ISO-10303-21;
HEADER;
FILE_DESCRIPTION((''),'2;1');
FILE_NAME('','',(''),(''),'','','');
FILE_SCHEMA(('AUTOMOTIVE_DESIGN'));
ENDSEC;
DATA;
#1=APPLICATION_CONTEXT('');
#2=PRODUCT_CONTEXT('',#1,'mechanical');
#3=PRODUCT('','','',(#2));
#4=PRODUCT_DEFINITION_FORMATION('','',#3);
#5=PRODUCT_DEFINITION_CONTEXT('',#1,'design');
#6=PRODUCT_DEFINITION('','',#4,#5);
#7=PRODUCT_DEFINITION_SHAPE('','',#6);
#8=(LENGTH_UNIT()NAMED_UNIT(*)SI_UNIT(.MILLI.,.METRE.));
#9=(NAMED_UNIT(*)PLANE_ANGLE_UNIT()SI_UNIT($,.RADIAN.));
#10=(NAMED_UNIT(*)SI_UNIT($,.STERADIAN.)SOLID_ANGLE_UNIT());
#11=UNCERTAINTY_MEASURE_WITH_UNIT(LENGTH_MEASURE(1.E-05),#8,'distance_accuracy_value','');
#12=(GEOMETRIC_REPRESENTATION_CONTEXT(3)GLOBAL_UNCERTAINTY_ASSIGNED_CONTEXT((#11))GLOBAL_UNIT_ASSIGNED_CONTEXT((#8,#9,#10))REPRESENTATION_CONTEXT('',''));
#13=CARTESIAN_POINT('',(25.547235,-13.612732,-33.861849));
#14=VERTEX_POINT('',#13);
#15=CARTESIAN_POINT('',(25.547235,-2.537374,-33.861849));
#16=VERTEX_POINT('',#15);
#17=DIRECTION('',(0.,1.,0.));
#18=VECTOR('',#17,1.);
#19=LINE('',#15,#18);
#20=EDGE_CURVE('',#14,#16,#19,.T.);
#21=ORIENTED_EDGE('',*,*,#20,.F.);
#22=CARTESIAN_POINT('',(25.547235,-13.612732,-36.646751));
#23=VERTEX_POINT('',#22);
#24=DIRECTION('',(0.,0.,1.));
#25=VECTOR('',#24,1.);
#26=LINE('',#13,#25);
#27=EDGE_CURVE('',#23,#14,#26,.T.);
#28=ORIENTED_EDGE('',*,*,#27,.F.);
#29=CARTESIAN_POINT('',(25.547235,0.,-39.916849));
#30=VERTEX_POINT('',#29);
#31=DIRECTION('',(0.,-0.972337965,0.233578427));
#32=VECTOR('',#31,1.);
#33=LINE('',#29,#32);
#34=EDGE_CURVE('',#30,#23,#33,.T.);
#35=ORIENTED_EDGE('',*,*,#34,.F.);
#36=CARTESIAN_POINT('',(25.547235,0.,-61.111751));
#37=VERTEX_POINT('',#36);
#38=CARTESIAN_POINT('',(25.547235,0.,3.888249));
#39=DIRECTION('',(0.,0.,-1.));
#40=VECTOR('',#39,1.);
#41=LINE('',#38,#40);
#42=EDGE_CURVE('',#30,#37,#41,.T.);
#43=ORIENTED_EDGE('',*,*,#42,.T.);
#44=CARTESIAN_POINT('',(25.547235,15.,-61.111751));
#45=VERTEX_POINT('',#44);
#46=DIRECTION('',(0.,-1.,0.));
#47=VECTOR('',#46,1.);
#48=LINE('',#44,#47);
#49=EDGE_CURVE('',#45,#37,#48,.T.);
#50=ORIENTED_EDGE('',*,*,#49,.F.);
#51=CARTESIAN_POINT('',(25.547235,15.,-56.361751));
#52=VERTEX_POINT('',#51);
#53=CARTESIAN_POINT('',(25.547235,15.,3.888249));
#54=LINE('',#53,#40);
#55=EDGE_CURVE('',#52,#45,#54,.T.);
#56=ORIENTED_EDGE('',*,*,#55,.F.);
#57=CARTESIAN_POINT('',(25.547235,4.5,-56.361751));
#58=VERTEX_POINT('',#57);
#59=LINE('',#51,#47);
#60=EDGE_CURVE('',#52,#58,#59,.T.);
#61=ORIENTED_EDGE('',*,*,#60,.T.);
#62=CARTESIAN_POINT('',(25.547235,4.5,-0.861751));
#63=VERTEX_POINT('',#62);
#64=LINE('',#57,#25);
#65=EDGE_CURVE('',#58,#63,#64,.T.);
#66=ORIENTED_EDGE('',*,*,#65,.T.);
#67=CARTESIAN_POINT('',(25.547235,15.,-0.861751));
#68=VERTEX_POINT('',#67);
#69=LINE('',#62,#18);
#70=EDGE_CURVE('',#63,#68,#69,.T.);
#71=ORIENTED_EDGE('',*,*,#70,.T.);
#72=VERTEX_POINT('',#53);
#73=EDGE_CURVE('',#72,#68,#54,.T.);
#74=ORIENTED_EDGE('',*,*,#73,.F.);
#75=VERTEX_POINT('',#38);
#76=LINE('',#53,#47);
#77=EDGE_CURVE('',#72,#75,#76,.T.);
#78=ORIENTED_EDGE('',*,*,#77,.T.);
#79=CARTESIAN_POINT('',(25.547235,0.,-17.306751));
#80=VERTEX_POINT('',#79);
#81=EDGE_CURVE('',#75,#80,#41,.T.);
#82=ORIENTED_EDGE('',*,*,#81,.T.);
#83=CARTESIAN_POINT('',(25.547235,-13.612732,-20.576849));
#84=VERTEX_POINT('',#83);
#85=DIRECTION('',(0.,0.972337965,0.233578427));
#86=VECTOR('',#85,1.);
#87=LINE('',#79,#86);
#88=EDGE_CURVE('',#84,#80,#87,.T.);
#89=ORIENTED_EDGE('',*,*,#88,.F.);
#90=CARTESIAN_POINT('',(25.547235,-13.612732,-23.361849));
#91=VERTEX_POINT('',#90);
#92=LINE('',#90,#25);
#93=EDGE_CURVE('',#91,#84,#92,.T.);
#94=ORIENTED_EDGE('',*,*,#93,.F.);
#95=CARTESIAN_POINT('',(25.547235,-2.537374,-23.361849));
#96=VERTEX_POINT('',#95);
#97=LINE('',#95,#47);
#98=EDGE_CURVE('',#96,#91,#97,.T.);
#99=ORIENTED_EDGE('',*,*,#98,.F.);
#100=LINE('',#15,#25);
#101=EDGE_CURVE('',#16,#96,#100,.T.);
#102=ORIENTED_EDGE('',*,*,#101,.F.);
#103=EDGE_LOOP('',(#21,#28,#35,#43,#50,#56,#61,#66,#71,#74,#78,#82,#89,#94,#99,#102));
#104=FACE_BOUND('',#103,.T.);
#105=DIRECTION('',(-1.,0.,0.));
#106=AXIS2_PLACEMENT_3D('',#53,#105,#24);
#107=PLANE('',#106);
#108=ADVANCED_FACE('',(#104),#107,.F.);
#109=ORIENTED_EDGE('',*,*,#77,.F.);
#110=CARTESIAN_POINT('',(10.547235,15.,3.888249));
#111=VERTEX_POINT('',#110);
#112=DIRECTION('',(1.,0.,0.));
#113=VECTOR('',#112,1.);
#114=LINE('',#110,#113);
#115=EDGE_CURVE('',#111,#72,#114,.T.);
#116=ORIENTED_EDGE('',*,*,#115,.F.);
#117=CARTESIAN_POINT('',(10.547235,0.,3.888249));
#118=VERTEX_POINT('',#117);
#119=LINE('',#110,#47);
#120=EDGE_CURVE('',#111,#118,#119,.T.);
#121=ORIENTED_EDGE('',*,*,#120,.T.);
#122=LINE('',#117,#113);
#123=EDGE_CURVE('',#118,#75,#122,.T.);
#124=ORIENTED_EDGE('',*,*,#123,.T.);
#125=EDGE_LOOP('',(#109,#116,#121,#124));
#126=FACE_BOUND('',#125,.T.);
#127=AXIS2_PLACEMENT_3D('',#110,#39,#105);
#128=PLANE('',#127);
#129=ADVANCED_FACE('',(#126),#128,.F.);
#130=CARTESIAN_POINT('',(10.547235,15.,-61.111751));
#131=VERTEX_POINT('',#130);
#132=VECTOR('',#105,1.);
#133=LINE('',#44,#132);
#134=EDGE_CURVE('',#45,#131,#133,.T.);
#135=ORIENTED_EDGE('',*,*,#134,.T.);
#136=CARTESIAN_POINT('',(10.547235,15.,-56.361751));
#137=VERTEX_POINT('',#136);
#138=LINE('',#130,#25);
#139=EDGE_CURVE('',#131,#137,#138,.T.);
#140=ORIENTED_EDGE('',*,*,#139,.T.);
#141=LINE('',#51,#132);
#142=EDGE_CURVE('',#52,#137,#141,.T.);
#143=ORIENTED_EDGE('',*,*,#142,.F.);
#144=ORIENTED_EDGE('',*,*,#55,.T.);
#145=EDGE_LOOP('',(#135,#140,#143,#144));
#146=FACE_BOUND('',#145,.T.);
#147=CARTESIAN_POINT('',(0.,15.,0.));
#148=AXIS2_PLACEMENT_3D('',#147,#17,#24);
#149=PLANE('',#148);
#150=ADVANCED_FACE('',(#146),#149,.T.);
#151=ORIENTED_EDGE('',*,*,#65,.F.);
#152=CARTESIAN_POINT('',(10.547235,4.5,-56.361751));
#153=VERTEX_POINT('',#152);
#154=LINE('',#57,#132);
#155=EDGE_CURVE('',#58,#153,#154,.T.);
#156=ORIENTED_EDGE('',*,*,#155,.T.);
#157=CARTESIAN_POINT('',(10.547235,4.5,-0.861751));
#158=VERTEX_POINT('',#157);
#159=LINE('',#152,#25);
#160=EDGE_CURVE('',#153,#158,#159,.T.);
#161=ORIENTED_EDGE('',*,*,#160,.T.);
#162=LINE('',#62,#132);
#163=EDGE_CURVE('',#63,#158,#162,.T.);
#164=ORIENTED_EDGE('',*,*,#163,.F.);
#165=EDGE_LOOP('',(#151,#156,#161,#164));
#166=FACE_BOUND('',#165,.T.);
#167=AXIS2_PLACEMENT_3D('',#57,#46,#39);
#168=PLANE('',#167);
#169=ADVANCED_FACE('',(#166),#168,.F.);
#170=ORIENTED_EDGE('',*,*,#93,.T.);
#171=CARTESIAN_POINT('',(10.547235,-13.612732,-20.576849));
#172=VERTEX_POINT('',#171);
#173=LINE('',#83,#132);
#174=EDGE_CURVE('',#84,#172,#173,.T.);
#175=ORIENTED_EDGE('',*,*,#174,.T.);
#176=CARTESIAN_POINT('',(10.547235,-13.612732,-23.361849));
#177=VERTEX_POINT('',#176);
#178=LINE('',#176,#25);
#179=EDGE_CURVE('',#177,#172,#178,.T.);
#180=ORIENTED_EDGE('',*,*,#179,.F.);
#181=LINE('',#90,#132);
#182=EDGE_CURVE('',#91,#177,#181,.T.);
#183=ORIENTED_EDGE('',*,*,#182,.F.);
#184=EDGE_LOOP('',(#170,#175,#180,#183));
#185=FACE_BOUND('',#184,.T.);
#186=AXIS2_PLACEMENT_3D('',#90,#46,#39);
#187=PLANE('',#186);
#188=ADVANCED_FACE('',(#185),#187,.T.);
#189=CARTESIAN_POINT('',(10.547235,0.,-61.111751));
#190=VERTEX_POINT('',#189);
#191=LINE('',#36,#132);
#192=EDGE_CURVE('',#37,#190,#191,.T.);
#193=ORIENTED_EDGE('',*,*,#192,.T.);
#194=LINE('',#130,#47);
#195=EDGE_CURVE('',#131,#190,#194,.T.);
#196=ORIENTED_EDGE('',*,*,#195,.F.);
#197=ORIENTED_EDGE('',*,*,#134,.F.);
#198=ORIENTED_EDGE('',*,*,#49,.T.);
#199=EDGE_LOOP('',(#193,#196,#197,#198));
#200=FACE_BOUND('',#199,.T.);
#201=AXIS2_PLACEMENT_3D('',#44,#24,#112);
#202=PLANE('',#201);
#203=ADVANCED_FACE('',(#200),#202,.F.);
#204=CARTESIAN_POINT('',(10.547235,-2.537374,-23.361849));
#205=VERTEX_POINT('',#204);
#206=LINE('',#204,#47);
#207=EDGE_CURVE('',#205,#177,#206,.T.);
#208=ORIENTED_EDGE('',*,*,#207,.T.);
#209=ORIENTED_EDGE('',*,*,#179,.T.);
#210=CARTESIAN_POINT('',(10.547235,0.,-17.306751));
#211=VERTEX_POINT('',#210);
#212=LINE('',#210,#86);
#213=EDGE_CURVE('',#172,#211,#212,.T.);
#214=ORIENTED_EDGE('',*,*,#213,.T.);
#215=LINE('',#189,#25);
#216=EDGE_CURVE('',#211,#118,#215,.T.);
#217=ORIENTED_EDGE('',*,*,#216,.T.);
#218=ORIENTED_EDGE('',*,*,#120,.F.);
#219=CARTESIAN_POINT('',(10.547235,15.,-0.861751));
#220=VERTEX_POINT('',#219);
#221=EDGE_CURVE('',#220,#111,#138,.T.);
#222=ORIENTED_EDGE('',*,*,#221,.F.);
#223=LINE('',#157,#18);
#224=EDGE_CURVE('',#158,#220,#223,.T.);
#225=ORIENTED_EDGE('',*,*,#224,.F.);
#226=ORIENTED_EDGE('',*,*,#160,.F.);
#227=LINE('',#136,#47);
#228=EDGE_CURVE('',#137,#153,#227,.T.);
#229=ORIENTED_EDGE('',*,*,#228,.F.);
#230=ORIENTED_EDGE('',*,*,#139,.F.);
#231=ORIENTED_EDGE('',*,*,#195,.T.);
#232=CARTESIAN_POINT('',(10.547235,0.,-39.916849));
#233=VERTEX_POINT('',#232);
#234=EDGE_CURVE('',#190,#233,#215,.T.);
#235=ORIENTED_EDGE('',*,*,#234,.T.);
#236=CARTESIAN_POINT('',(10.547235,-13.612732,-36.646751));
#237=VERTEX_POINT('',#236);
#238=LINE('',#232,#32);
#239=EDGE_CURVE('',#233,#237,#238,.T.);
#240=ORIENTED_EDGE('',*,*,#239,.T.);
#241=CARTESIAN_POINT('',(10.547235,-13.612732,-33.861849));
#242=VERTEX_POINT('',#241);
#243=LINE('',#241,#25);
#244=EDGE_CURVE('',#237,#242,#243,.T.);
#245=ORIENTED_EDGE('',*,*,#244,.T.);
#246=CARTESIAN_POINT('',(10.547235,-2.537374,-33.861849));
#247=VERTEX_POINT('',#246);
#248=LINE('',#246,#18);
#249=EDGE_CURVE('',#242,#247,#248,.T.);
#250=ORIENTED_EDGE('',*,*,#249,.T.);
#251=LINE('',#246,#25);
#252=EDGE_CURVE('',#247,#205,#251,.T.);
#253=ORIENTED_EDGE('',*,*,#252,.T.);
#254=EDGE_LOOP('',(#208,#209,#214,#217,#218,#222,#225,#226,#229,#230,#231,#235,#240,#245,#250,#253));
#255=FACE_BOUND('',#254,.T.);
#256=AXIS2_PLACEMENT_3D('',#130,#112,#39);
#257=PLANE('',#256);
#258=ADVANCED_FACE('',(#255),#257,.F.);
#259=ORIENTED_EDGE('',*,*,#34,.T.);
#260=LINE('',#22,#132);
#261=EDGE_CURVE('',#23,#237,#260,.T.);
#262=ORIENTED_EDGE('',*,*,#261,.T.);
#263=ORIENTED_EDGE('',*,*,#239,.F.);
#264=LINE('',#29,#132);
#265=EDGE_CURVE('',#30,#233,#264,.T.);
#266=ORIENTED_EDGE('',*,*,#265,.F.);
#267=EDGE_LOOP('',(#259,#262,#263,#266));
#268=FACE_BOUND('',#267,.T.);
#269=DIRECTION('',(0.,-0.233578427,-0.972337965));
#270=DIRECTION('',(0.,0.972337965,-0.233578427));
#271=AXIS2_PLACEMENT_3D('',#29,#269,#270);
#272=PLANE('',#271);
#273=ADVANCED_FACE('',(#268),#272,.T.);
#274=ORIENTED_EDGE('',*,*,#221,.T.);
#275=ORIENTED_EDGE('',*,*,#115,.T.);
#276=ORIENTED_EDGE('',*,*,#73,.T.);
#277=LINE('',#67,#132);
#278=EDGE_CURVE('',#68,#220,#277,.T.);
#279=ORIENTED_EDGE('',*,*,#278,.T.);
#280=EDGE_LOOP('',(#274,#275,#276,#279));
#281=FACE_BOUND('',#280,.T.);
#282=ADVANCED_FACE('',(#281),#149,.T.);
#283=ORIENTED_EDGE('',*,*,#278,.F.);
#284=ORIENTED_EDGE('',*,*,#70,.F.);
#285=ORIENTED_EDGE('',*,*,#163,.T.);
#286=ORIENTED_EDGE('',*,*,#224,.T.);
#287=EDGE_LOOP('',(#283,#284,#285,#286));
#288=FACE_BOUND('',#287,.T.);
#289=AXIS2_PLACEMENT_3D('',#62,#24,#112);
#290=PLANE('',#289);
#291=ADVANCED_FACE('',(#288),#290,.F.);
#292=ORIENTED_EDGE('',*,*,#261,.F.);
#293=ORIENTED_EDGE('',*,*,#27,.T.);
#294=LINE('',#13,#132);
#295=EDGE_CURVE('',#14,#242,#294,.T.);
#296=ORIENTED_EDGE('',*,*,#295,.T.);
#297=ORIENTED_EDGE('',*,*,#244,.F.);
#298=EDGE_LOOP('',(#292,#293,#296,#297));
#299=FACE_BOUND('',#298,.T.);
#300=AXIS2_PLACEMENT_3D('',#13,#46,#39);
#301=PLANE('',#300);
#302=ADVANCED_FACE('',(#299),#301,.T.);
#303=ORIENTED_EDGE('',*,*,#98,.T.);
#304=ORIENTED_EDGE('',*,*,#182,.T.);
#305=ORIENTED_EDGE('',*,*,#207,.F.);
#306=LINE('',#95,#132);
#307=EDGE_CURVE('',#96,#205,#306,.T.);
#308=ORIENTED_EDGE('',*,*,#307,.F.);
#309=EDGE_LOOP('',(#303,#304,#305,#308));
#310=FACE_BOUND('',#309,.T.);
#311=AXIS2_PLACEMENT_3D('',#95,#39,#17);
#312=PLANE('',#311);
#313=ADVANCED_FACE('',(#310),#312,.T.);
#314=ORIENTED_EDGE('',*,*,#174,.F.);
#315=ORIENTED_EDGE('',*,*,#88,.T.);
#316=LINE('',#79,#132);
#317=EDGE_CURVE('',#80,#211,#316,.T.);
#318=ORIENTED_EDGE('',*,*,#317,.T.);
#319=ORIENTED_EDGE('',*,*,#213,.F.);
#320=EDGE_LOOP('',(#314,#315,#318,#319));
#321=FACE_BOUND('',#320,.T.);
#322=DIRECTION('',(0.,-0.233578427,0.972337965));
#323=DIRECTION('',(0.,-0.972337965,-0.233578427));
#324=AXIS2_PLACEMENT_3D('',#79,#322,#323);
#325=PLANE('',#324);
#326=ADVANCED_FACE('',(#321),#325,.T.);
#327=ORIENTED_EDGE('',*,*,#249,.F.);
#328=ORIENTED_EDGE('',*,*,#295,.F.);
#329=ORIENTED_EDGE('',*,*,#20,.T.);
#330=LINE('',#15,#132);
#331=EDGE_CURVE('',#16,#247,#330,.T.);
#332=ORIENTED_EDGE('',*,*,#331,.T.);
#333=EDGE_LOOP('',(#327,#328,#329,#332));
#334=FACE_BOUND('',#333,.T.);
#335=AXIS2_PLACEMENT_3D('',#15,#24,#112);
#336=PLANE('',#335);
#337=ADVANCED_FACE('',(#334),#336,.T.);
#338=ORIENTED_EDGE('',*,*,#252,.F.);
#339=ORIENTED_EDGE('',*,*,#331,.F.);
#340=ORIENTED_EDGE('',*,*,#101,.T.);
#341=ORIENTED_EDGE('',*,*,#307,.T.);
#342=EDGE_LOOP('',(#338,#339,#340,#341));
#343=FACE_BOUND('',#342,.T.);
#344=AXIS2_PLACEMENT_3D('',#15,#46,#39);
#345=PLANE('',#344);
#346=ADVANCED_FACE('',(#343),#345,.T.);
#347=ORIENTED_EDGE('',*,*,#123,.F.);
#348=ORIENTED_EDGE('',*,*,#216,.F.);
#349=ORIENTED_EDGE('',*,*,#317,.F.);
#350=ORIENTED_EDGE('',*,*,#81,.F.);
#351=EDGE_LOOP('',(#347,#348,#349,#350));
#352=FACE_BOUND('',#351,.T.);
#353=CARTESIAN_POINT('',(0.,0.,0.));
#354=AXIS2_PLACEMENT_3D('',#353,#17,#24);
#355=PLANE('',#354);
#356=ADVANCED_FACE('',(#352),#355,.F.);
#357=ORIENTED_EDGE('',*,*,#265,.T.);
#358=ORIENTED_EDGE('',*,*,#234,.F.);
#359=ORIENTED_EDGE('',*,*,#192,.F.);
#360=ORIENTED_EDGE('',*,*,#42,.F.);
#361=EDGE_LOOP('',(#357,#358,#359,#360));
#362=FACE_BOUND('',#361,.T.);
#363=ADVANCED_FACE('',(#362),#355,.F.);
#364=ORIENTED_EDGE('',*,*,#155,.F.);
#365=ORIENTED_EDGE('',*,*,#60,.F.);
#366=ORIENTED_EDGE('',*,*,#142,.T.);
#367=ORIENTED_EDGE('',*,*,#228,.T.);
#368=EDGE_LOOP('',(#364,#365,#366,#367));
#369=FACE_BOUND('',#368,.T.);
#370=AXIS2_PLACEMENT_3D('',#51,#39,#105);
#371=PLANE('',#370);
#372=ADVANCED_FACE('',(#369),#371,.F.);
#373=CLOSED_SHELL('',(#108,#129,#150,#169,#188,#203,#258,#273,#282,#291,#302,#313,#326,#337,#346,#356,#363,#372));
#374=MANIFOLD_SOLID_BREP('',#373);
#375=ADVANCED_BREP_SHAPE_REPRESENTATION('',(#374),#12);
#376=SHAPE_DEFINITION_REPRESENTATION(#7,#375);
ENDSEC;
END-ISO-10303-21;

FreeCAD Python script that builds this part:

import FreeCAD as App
import Part
import Sketcher
Q = App.Units.Quantity

doc = App.newDocument("Part")
body = doc.addObject("PartDesign::Body", "Body")

sketch1 = doc.addObject("Sketcher::SketchObject", "Sketch")
body.addObject(sketch1)
sketch1.AttachmentSupport = (doc.XZ_Plane, [""])
sketch1.MapMode = "FlatFace"
sketch1.addGeometry([
    Part.LineSegment(App.Vector(11, -61, 0), App.Vector(11, 4, 0)),
    Part.LineSegment(App.Vector(11, 4, 0), App.Vector(26, 4, 0)),
    Part.LineSegment(App.Vector(26, 4, 0), App.Vector(26, -61, 0)),
    Part.LineSegment(App.Vector(26, -61, 0), App.Vector(11, -61, 0)),
], False)
sketch1.addConstraint([
    Sketcher.Constraint("Coincident", 0, 2, 1, 1),
    Sketcher.Constraint("Coincident", 1, 2, 2, 1),
    Sketcher.Constraint("Coincident", 2, 2, 3, 1),
    Sketcher.Constraint("Coincident", 3, 2, 0, 1),
    Sketcher.Constraint("Vertical", 0),
    Sketcher.Constraint("Horizontal", 1),
    Sketcher.Constraint("Vertical", 2),
    Sketcher.Constraint("Horizontal", 3),
    Sketcher.Constraint("DistanceX", 1, 1, 1, 2, Q("15 mm")),
    Sketcher.Constraint("DistanceY", 0, 1, 0, 2, Q("65 mm")),
    Sketcher.Constraint("DistanceY", -1, 1, 0, 2, Q("3.888249 mm")),
    Sketcher.Constraint("DistanceX", -1, 1, 0, 2, Q("10.547235 mm")),
])
pad1 = doc.addObject("PartDesign::Pad", "Pad")
body.addObject(pad1)
pad1.Profile = sketch1
pad1.Length = 15
pad1.Reversed = True

sketch2 = doc.addObject("Sketcher::SketchObject", "Sketch001")
body.addObject(sketch2)
sketch2.AttachmentSupport = (doc.YZ_Plane, [""])
sketch2.MapMode = "FlatFace"
sketch2.AttachmentOffset = App.Placement(App.Vector(0, 0, 10.547235), App.Rotation())
sketch2.addGeometry([
    Part.LineSegment(App.Vector(15, -56, 0), App.Vector(4, -56, 0)),
    Part.LineSegment(App.Vector(4, -56, 0), App.Vector(4, -1, 0)),
    Part.LineSegment(App.Vector(4, -1, 0), App.Vector(15, -1, 0)),
    Part.LineSegment(App.Vector(15, -1, 0), App.Vector(15, -56, 0)),
], False)
sketch2.addConstraint([
    Sketcher.Constraint("Coincident", 0, 2, 1, 1),
    Sketcher.Constraint("Coincident", 1, 2, 2, 1),
    Sketcher.Constraint("Coincident", 2, 2, 3, 1),
    Sketcher.Constraint("Coincident", 3, 2, 0, 1),
    Sketcher.Constraint("Horizontal", 0),
    Sketcher.Constraint("Vertical", 1),
    Sketcher.Constraint("Horizontal", 2),
    Sketcher.Constraint("Vertical", 3),
    Sketcher.Constraint("DistanceX", 0, 2, 0, 1, Q("10.5 mm")),
    Sketcher.Constraint("DistanceY", 1, 1, 1, 2, Q("55.5 mm")),
    Sketcher.Constraint("DistanceX", -1, 1, 2, 2, Q("15 mm")),
    Sketcher.Constraint("DistanceY", 0, 2, -1, 1, Q("56.361751 mm")),
])
pocket1 = doc.addObject("PartDesign::Pocket", "Pocket")
body.addObject(pocket1)
pocket1.Profile = sketch2
pocket1.Type = "ThroughAll"
pocket1.Reversed = True

sketch3 = doc.addObject("Sketcher::SketchObject", "Sketch002")
body.addObject(sketch3)
sketch3.AttachmentSupport = (doc.YZ_Plane, [""])
sketch3.MapMode = "FlatFace"
sketch3.AttachmentOffset = App.Placement(App.Vector(0, 0, 10.547235), App.Rotation())
sketch3.addGeometry([
    Part.LineSegment(App.Vector(-13.6, -20.6, 0), App.Vector(0, -17.3, 0)),
    Part.LineSegment(App.Vector(0, -17.3, 0), App.Vector(0, -39.9, 0)),
    Part.LineSegment(App.Vector(0, -39.9, 0), App.Vector(-13.6, -36.6, 0)),
    Part.LineSegment(App.Vector(-13.6, -36.6, 0), App.Vector(-13.6, -33.9, 0)),
    Part.LineSegment(App.Vector(-13.6, -33.9, 0), App.Vector(-2.5, -33.9, 0)),
    Part.LineSegment(App.Vector(-2.5, -33.9, 0), App.Vector(-2.5, -23.4, 0)),
    Part.LineSegment(App.Vector(-2.5, -23.4, 0), App.Vector(-13.6, -23.4, 0)),
    Part.LineSegment(App.Vector(-13.6, -23.4, 0), App.Vector(-13.6, -20.6, 0)),
], False)
sketch3.addConstraint([
    Sketcher.Constraint("Coincident", 0, 2, 1, 1),
    Sketcher.Constraint("Coincident", 1, 2, 2, 1),
    Sketcher.Constraint("Coincident", 2, 2, 3, 1),
    Sketcher.Constraint("Coincident", 3, 2, 4, 1),
    Sketcher.Constraint("Coincident", 4, 2, 5, 1),
    Sketcher.Constraint("Coincident", 5, 2, 6, 1),
    Sketcher.Constraint("Coincident", 6, 2, 7, 1),
    Sketcher.Constraint("Coincident", 7, 2, 0, 1),
    Sketcher.Constraint("Vertical", 1),
    Sketcher.Constraint("Vertical", 3),
    Sketcher.Constraint("Horizontal", 4),
    Sketcher.Constraint("Vertical", 5),
    Sketcher.Constraint("Horizontal", 6),
    Sketcher.Constraint("Vertical", 7),
    Sketcher.Constraint("PointOnObject", 0, 2, -2),
    Sketcher.Constraint("Vertical", 3, 2, 6, 2),
    Sketcher.Constraint("Equal", 0, 2),
    Sketcher.Constraint("Distance", 0, Q("14 mm")),
    Sketcher.Constraint("DistanceY", 5, 1, 5, 2, Q("10.5 mm")),
    Sketcher.Constraint("DistanceY", 7, 1, 7, 2, Q("2.785 mm")),
    Sketcher.Constraint("DistanceY", 2, 2, 0, 2, Q("19.34 mm")),
    Sketcher.Constraint("DistanceX", 4, 1, 4, 2, Q("11.075358 mm")),
    Sketcher.Constraint("DistanceY", 1, 2, 1, 1, Q("22.610098 mm")),
    Sketcher.Constraint("DistanceY", 0, 2, -1, 1, Q("17.306751 mm")),
])
pad2 = doc.addObject("PartDesign::Pad", "Pad001")
body.addObject(pad2)
pad2.Profile = sketch3
pad2.Length = 15

doc.recompute()
